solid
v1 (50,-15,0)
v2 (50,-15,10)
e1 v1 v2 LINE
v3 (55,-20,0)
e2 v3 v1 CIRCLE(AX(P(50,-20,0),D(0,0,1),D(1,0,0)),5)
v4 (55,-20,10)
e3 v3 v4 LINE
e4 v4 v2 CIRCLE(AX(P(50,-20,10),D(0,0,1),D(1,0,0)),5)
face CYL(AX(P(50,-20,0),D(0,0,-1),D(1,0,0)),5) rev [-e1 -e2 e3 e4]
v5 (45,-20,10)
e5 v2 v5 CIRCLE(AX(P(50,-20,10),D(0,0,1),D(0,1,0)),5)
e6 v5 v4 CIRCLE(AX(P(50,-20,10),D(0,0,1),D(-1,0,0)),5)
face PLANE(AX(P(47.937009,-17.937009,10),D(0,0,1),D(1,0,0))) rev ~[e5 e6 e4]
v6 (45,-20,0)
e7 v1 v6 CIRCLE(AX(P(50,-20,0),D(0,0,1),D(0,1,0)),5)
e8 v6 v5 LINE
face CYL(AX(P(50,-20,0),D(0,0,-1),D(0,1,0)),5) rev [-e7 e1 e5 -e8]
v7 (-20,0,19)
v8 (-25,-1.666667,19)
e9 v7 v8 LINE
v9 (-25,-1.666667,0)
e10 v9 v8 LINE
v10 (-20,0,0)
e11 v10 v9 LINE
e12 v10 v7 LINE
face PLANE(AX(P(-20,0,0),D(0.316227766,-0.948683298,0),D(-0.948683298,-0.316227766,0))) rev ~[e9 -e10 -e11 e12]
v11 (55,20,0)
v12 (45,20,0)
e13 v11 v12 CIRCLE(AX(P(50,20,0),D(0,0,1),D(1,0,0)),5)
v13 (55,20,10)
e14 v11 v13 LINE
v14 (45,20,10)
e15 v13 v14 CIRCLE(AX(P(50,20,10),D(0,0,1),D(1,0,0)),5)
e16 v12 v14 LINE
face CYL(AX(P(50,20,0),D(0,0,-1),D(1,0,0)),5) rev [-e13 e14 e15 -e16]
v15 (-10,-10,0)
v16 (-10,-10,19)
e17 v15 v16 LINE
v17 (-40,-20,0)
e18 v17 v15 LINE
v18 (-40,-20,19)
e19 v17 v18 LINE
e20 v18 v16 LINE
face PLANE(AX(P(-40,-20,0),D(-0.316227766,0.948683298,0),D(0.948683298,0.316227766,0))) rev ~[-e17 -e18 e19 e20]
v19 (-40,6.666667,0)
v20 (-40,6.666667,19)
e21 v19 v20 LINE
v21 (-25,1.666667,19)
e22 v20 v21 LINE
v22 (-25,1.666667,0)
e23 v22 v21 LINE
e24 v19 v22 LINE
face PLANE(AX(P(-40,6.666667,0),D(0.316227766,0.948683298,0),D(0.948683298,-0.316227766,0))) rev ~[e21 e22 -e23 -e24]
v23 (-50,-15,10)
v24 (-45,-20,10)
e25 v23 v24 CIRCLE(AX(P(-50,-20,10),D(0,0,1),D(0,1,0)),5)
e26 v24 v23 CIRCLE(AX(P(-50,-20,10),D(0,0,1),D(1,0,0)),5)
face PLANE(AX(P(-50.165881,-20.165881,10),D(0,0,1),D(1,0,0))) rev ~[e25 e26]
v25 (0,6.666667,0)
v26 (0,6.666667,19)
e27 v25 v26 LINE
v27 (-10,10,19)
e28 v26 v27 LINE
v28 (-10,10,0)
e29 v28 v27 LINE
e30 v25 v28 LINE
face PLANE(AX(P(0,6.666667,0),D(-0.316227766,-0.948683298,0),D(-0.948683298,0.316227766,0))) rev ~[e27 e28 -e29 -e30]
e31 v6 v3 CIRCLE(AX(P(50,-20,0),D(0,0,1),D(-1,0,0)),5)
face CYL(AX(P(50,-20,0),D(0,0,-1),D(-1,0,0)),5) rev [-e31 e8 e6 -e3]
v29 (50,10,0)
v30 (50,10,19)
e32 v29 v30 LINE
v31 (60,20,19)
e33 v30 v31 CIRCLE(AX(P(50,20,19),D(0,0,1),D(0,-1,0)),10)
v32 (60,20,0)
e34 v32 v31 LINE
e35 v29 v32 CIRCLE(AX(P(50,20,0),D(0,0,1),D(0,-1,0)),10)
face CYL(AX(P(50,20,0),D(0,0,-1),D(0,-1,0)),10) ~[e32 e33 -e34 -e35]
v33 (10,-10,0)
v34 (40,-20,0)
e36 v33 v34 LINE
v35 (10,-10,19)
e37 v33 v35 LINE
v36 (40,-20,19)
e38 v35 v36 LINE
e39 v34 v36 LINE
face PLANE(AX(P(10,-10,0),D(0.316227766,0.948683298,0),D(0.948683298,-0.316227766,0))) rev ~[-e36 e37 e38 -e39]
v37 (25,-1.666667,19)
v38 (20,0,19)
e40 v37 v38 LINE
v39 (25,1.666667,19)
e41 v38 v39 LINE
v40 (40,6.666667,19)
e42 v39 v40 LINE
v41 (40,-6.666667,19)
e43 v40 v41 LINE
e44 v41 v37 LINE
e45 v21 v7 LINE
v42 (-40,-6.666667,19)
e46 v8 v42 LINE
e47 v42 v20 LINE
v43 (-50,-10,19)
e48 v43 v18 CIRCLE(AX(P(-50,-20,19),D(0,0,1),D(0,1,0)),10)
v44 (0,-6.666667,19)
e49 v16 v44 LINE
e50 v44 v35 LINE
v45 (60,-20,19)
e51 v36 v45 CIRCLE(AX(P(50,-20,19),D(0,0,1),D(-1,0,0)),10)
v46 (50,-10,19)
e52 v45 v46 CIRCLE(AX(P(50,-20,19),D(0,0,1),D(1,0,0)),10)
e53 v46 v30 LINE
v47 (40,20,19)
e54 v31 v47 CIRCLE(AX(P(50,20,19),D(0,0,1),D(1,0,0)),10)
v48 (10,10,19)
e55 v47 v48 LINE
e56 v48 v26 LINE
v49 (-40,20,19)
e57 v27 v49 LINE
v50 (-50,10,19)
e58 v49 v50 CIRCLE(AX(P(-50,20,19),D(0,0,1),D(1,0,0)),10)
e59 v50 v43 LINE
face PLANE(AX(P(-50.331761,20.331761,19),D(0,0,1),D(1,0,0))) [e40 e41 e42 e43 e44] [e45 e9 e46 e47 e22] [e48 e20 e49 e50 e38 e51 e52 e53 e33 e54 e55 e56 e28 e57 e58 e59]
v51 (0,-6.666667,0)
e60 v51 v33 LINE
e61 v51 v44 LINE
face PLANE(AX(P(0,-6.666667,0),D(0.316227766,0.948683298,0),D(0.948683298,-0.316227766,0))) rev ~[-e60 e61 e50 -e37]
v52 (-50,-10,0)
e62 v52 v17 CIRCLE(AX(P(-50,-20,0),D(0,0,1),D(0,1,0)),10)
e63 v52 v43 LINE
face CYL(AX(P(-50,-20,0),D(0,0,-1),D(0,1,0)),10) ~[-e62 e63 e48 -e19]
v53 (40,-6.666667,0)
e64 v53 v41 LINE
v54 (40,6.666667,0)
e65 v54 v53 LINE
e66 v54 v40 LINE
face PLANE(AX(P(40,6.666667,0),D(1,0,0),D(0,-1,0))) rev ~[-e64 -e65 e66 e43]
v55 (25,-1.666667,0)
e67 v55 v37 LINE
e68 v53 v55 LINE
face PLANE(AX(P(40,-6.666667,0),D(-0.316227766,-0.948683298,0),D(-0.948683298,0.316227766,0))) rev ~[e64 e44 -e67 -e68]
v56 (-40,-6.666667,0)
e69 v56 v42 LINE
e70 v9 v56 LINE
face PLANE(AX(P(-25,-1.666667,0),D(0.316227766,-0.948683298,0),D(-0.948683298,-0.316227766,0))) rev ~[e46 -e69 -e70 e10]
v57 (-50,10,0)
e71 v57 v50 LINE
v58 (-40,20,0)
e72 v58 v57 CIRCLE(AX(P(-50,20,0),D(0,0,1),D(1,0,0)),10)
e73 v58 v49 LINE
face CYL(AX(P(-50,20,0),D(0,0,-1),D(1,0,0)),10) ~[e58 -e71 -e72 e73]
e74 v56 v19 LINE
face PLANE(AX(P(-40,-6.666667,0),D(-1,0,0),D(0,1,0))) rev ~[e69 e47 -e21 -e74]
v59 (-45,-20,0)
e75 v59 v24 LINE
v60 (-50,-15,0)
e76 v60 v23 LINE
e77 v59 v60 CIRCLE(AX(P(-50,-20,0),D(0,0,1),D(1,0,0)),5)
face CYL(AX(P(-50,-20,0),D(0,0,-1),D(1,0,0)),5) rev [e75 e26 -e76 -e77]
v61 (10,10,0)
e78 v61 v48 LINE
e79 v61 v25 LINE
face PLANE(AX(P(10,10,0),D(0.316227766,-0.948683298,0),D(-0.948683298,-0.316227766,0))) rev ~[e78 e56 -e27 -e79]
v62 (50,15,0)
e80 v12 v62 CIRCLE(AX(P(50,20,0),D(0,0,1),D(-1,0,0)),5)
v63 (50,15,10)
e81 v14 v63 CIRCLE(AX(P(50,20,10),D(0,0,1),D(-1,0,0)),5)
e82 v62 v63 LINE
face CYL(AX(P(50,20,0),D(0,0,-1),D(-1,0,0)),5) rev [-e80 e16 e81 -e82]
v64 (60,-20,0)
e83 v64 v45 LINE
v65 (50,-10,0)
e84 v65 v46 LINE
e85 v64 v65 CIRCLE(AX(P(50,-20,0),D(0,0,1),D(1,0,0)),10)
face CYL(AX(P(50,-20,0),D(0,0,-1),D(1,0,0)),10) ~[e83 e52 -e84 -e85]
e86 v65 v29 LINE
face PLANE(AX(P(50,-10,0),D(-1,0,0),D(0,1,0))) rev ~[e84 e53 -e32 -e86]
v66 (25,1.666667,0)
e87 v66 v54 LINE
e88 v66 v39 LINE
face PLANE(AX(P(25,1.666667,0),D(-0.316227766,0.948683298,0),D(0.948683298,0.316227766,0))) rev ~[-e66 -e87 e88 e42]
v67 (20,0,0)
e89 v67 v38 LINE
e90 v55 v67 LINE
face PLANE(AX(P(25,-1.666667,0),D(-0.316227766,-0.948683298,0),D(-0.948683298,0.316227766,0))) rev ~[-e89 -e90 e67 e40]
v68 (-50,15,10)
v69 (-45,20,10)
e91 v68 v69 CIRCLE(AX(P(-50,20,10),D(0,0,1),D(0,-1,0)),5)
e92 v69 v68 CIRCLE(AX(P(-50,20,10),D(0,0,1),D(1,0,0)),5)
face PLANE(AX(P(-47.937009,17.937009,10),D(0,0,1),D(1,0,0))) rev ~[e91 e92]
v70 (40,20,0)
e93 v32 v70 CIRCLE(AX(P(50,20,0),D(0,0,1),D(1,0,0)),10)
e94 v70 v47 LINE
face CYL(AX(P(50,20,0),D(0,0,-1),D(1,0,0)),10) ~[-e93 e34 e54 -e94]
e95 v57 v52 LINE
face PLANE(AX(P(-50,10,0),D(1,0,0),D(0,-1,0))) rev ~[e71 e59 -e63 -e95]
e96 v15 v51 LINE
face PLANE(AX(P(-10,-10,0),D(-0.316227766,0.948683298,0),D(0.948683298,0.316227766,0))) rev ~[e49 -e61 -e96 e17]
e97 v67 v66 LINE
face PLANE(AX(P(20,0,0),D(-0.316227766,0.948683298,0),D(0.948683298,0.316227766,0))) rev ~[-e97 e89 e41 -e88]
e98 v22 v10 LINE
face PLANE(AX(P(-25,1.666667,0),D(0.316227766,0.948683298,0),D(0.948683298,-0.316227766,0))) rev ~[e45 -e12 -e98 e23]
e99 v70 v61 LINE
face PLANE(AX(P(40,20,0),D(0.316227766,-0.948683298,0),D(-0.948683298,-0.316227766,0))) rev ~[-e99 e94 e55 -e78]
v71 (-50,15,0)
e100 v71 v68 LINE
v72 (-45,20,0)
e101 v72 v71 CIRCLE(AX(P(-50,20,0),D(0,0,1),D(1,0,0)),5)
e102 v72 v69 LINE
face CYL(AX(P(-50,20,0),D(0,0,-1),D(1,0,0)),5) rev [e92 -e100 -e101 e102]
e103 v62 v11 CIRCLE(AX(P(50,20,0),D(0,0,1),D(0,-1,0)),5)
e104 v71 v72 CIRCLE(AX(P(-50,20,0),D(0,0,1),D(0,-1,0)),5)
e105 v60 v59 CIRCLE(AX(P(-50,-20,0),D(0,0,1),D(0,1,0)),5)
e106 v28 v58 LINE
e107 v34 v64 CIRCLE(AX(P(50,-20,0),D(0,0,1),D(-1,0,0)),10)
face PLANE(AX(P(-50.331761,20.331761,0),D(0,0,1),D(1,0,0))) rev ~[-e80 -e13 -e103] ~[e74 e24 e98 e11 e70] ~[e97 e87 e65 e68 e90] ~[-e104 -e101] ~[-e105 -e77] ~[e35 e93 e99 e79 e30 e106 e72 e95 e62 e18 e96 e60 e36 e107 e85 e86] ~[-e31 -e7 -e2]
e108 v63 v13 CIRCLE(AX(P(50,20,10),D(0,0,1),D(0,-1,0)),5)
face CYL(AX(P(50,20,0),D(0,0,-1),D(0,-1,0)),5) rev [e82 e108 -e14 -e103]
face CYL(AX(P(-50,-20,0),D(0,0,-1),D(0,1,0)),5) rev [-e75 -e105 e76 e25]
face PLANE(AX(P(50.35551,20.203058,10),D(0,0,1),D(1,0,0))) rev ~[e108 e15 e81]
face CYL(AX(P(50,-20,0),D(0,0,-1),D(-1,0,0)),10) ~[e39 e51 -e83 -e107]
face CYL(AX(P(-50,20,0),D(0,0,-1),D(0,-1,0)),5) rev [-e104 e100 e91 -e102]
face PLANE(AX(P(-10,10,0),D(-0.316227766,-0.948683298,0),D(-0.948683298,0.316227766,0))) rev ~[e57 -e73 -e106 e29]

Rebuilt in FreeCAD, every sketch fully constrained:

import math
import FreeCAD as App
import Part
import Sketcher
from FreeCAD import Vector

doc = App.newDocument("Part")
params = doc.addObject("Spreadsheet::Sheet", "Params")
for row, (alias, value) in enumerate([
    ("sketch1_radius", "10 mm"),
    ("sketch1_height", "20 mm"),
    ("pad1_length", "19 mm"),
    ("sketch2_radius", "5 mm"),
    ("pocket1_length", "10 mm"),
], start=1):
    params.set(f"A{row}", alias)
    params.set(f"B{row}", "=" + value)
    params.setAlias(f"B{row}", alias)

body = doc.addObject("PartDesign::Body", "Body")

# Sketch on XY plane
sketch1 = body.newObject("Sketcher::SketchObject", "Sketch")
sketch1.AttachmentSupport = (doc.getObject("XY_Plane"), [""])
sketch1.MapMode = "FlatFace"
sketch1.addGeometry([
    Part.ArcOfCircle(Part.Circle(Vector(-50, 20, 0), Vector(0, 0, 1), 10), math.radians(0), math.radians(270)),  # 0
    Part.LineSegment(Vector(-50, 10, 0), Vector(-50, -10, 0)),  # 1
    Part.ArcOfCircle(Part.Circle(Vector(-50, -20, 0), Vector(0, 0, 1), 10), math.radians(90), math.radians(360)),  # 2
    Part.LineSegment(Vector(-40, -20, 0), Vector(-10, -10, 0)),  # 3
    Part.LineSegment(Vector(-10, -10, 0), Vector(0, -6.666667, 0)),  # 4
    Part.LineSegment(Vector(0, -6.666667, 0), Vector(10, -10, 0)),  # 5
    Part.LineSegment(Vector(10, -10, 0), Vector(40, -20, 0)),  # 6
    Part.ArcOfCircle(Part.Circle(Vector(50, -20, 0), Vector(0, 0, 1), 10), math.radians(180), math.radians(360)),  # 7
    Part.ArcOfCircle(Part.Circle(Vector(50, -20, 0), Vector(0, 0, 1), 10), math.radians(0), math.radians(90)),  # 8
    Part.LineSegment(Vector(50, -10, 0), Vector(50, 10, 0)),  # 9
    Part.ArcOfCircle(Part.Circle(Vector(50, 20, 0), Vector(0, 0, 1), 10), math.radians(-90), math.radians(0)),  # 10
    Part.ArcOfCircle(Part.Circle(Vector(50, 20, 0), Vector(0, 0, 1), 10), math.radians(0), math.radians(180)),  # 11
    Part.LineSegment(Vector(40, 20, 0), Vector(10, 10, 0)),  # 12
    Part.LineSegment(Vector(10, 10, 0), Vector(0, 6.666667, 0)),  # 13
    Part.LineSegment(Vector(0, 6.666667, 0), Vector(-10, 10, 0)),  # 14
    Part.LineSegment(Vector(-10, 10, 0), Vector(-40, 20, 0)),  # 15
    Part.LineSegment(Vector(-25, -1.666667, 0), Vector(-40, -6.666667, 0)),  # 16
    Part.LineSegment(Vector(-40, -6.666667, 0), Vector(-40, 6.666667, 0)),  # 17
    Part.LineSegment(Vector(-40, 6.666667, 0), Vector(-25, 1.666667, 0)),  # 18
    Part.LineSegment(Vector(-25, 1.666667, 0), Vector(-20, 0, 0)),  # 19
    Part.LineSegment(Vector(-20, 0, 0), Vector(-25, -1.666667, 0)),  # 20
    Part.LineSegment(Vector(20, 0, 0), Vector(25, 1.666667, 0)),  # 21
    Part.LineSegment(Vector(25, 1.666667, 0), Vector(40, 6.666667, 0)),  # 22
    Part.LineSegment(Vector(40, 6.666667, 0), Vector(40, -6.666667, 0)),  # 23
    Part.LineSegment(Vector(40, -6.666667, 0), Vector(25, -1.666667, 0)),  # 24
    Part.LineSegment(Vector(25, -1.666667, 0), Vector(20, 0, 0)),  # 25
], False)
sketch1.addConstraint([
    Sketcher.Constraint("Coincident", 0, 2, 1, 1),
    Sketcher.Constraint("Coincident", 1, 2, 2, 1),
    Sketcher.Constraint("Coincident", 2, 2, 3, 1),
    Sketcher.Constraint("Coincident", 3, 2, 4, 1),
    Sketcher.Constraint("Coincident", 4, 2, 5, 1),
    Sketcher.Constraint("Coincident", 5, 2, 6, 1),
    Sketcher.Constraint("Coincident", 6, 2, 7, 1),
    Sketcher.Constraint("Tangent", 7, 2, 8, 1),
    Sketcher.Constraint("Coincident", 8, 2, 9, 1),
    Sketcher.Constraint("Coincident", 9, 2, 10, 1),
    Sketcher.Constraint("Tangent", 10, 2, 11, 1),
    Sketcher.Constraint("Coincident", 11, 2, 12, 1),
    Sketcher.Constraint("Coincident", 12, 2, 13, 1),
    Sketcher.Constraint("Coincident", 13, 2, 14, 1),
    Sketcher.Constraint("Coincident", 14, 2, 15, 1),
    Sketcher.Constraint("Coincident", 15, 2, 0, 1),
    Sketcher.Constraint("Coincident", 16, 2, 17, 1),
    Sketcher.Constraint("Coincident", 17, 2, 18, 1),
    Sketcher.Constraint("Coincident", 18, 2, 19, 1),
    Sketcher.Constraint("Coincident", 19, 2, 20, 1),
    Sketcher.Constraint("Coincident", 20, 2, 16, 1),
    Sketcher.Constraint("Coincident", 21, 2, 22, 1),
    Sketcher.Constraint("Coincident", 22, 2, 23, 1),
    Sketcher.Constraint("Coincident", 23, 2, 24, 1),
    Sketcher.Constraint("Coincident", 24, 2, 25, 1),
    Sketcher.Constraint("Coincident", 25, 2, 21, 1),
    Sketcher.Constraint("Vertical", 1),
    Sketcher.Constraint("Vertical", 9),
    Sketcher.Constraint("Vertical", 17),
    Sketcher.Constraint("Vertical", 23),
    Sketcher.Constraint("Equal", 0, 2),
    Sketcher.Constraint("Equal", 2, 7),
    Sketcher.Constraint("Equal", 7, 8),
    Sketcher.Constraint("Equal", 8, 10),
    Sketcher.Constraint("Equal", 10, 11),
    Sketcher.Constraint("Symmetric", 0, 3, 7, 3, -1, 1),
    Sketcher.Constraint("Symmetric", 2, 3, 10, 3, -1, 1),
    Sketcher.Constraint("Symmetric", 3, 2, 12, 2, -1, 1),
    Sketcher.Constraint("Symmetric", 4, 2, 13, 2, -1, 1),
    Sketcher.Constraint("Symmetric", 5, 2, 14, 2, -1, 1),
    Sketcher.Constraint("Symmetric", 20, 2, 21, 2, -1, 1),
    Sketcher.Constraint("Symmetric", 16, 2, 22, 2, -1, 1),
    Sketcher.Constraint("Symmetric", 18, 2, 24, 2, -1, 1),
    Sketcher.Constraint("Symmetric", 19, 2, 25, 2, -1, 1),
    Sketcher.Constraint("Symmetric", 2, 3, 7, 3, -2),
    Sketcher.Constraint("Symmetric", 3, 2, 5, 2, -2),
    Sketcher.Constraint("Symmetric", 18, 2, 21, 2, -2),
    Sketcher.Constraint("PointOnObject", 4, 2, -2),
    Sketcher.Constraint("PointOnObject", 19, 2, -1),
    Sketcher.Constraint("Parallel", 3, 4),
    Sketcher.Constraint("Parallel", 5, 6),
    Sketcher.Constraint("Parallel", 4, 12),
    Sketcher.Constraint("Parallel", 14, 15),
    Sketcher.Constraint("Parallel", 13, 16),
    Sketcher.Constraint("Parallel", 15, 18),
    Sketcher.Constraint("Parallel", 18, 19),
    Sketcher.Constraint("Parallel", 19, 24),
    Sketcher.Constraint("Horizontal", 8, 3, 2, 2),
    Sketcher.Constraint("Horizontal", 1, 2, 3, 2),
    Sketcher.Constraint("Horizontal", 6, 2, 7, 2),
    Sketcher.Constraint("Horizontal", 11, 3, 10, 2),
    Sketcher.Constraint("Horizontal", 4, 2, 16, 2),
    Sketcher.Constraint("Vertical", 2, 3, 0, 2),
    Sketcher.Constraint("Vertical", 11, 3, 8, 2),
    Sketcher.Constraint("Vertical", 15, 2, 16, 2),
    Sketcher.Constraint("Radius", 0, 10.0),
    Sketcher.Constraint("DistanceY", 1, 2, 1, 1, 20.0),
    Sketcher.Constraint("DistanceX", 0, 3, -1, 1, 50.0),
    Sketcher.Constraint("DistanceX", 3, 2, -1, 1, 10.0),
    Sketcher.Constraint("DistanceX", 18, 2, -1, 1, 25.0),
])
sketch1.setExpression("Constraints[65]", "Params.sketch1_radius")
sketch1.setExpression("Constraints[66]", "Params.sketch1_height")
pad1 = body.newObject("PartDesign::Pad", "Pad")
pad1.Profile = sketch1
pad1.setExpression("Length", "Params.pad1_length")

# Sketch on XY plane
sketch2 = body.newObject("Sketcher::SketchObject", "Sketch001")
sketch2.AttachmentSupport = (doc.getObject("XY_Plane"), [""])
sketch2.MapMode = "FlatFace"
sketch2.addGeometry([
    Part.ArcOfCircle(Part.Circle(Vector(-50, -20, 0), Vector(0, 0, 1), 5), math.radians(90), math.radians(360)),  # 0
    Part.ArcOfCircle(Part.Circle(Vector(-50, -20, 0), Vector(0, 0, 1), 5), math.radians(0), math.radians(90)),  # 1
    Part.ArcOfCircle(Part.Circle(Vector(-50, 20, 0), Vector(0, 0, 1), 5), math.radians(-90), math.radians(0)),  # 2
    Part.ArcOfCircle(Part.Circle(Vector(-50, 20, 0), Vector(0, 0, 1), 5), math.radians(0), math.radians(270)),  # 3
    Part.ArcOfCircle(Part.Circle(Vector(50, -20, 0), Vector(0, 0, 1), 5), math.radians(90), math.radians(180)),  # 4
    Part.ArcOfCircle(Part.Circle(Vector(50, -20, 0), Vector(0, 0, 1), 5), math.radians(180), math.radians(360)),  # 5
    Part.ArcOfCircle(Part.Circle(Vector(50, -20, 0), Vector(0, 0, 1), 5), math.radians(0), math.radians(90)),  # 6
    Part.ArcOfCircle(Part.Circle(Vector(50, 20, 0), Vector(0, 0, 1), 5), math.radians(-90), math.radians(0)),  # 7
    Part.ArcOfCircle(Part.Circle(Vector(50, 20, 0), Vector(0, 0, 1), 5), math.radians(0), math.radians(180)),  # 8
    Part.ArcOfCircle(Part.Circle(Vector(50, 20, 0), Vector(0, 0, 1), 5), math.radians(180), math.radians(270)),  # 9
], False)
sketch2.addConstraint([
    Sketcher.Constraint("Tangent", 0, 1, 1, 2),
    Sketcher.Constraint("Coincident", 1, 1, 0, 2),
    Sketcher.Constraint("Tangent", 2, 1, 3, 2),
    Sketcher.Constraint("Coincident", 3, 1, 2, 2),
    Sketcher.Constraint("Tangent", 4, 2, 5, 1),
    Sketcher.Constraint("Tangent", 5, 2, 6, 1),
    Sketcher.Constraint("Tangent", 6, 2, 4, 1),
    Sketcher.Constraint("Tangent", 7, 2, 8, 1),
    Sketcher.Constraint("Tangent", 8, 2, 9, 1),
    Sketcher.Constraint("Tangent", 9, 2, 7, 1),
    Sketcher.Constraint("Equal", 1, 2),
    Sketcher.Constraint("Equal", 3, 4),
    Sketcher.Constraint("Equal", 6, 7),
    Sketcher.Constraint("Symmetric", 2, 3, 4, 3, -1, 1),
    Sketcher.Constraint("Symmetric", 0, 3, 7, 3, -1, 1),
    Sketcher.Constraint("Symmetric", 0, 3, 4, 3, -2),
    Sketcher.Constraint("Horizontal", 6, 3, 1, 1),
    Sketcher.Constraint("Horizontal", 9, 3, 3, 1),
    Sketcher.Constraint("Horizontal", 1, 1, 4, 2),
    Sketcher.Constraint("Horizontal", 4, 2, 5, 2),
    Sketcher.Constraint("Horizontal", 3, 1, 7, 2),
    Sketcher.Constraint("Horizontal", 7, 2, 8, 2),
    Sketcher.Constraint("Vertical", 3, 3, 0, 1),
    Sketcher.Constraint("Vertical", 0, 1, 2, 1),
    Sketcher.Constraint("Vertical", 9, 3, 6, 2),
    Sketcher.Constraint("Vertical", 6, 2, 9, 2),
    Sketcher.Constraint("Radius", 0, 5.0),
    Sketcher.Constraint("DistanceX", 0, 3, -1, 1, 50.0),
    Sketcher.Constraint("DistanceY", 0, 3, -1, 1, 20.0),
])
sketch2.setExpression("Constraints[26]", "Params.sketch2_radius")
pocket1 = body.newObject("PartDesign::Pocket", "Pocket")
pocket1.Profile = sketch2
pocket1.setExpression("Length", "Params.pocket1_length")
pocket1.Reversed = True

doc.recompute()
